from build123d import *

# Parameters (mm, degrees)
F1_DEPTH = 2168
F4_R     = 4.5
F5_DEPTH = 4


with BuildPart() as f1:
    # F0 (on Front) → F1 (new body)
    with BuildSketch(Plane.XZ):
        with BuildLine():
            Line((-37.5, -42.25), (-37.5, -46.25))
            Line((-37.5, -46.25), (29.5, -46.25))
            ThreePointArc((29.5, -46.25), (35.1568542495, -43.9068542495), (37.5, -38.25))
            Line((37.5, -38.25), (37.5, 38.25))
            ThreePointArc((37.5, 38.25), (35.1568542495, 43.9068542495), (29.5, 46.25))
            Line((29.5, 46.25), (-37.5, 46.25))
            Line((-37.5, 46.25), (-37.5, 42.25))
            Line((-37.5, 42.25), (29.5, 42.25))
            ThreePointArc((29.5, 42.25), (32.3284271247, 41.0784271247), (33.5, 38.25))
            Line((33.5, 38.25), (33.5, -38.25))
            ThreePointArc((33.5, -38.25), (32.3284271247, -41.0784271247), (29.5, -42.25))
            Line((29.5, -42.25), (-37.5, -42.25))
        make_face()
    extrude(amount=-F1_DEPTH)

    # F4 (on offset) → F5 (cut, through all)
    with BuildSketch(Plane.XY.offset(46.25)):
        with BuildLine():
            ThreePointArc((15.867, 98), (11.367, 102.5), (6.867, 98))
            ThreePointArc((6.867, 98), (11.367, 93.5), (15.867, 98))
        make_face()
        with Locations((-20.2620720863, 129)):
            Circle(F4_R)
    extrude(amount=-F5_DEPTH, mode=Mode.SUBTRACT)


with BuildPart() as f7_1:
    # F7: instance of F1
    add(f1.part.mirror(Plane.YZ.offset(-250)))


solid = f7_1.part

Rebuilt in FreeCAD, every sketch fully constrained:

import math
import FreeCAD as App
import Part
import Sketcher

V = App.Vector

doc = App.newDocument("Part")
body = doc.addObject("PartDesign::Body", "Body")

# Sketch on XZ plane
sketch1 = body.newObject("Sketcher::SketchObject", "Sketch")
sketch1.AttachmentSupport = (doc.getObject("XZ_Plane"), [""])
sketch1.MapMode = "FlatFace"
sketch1.addGeometry([
    Part.LineSegment(V(-37.5, -42.2, 0), V(-37.5, -46.2, 0)),  # 0
    Part.LineSegment(V(-37.5, -46.2, 0), V(29.5, -46.2, 0)),  # 1
    Part.ArcOfCircle(Part.Circle(V(29.5, -38.2, 0), V(0, 0, 1), 8), math.radians(-90), math.radians(0)),  # 2
    Part.LineSegment(V(37.5, -38.2, 0), V(37.5, 38.2, 0)),  # 3
    Part.ArcOfCircle(Part.Circle(V(29.5, 38.2, 0), V(0, 0, 1), 8), math.radians(0), math.radians(90)),  # 4
    Part.LineSegment(V(29.5, 46.2, 0), V(-37.5, 46.2, 0)),  # 5
    Part.LineSegment(V(-37.5, 46.2, 0), V(-37.5, 42.2, 0)),  # 6
    Part.LineSegment(V(-37.5, 42.2, 0), V(29.5, 42.2, 0)),  # 7
    Part.ArcOfCircle(Part.Circle(V(29.5, 38.2, 0), V(0, 0, 1), 4), math.radians(0), math.radians(90)),  # 8
    Part.LineSegment(V(33.5, 38.2, 0), V(33.5, -38.2, 0)),  # 9
    Part.ArcOfCircle(Part.Circle(V(29.5, -38.2, 0), V(0, 0, 1), 4), math.radians(-90), math.radians(0)),  # 10
    Part.LineSegment(V(29.5, -42.2, 0), V(-37.5, -42.2, 0)),  # 11
], False)
sketch1.addConstraint([
    Sketcher.Constraint("Coincident", 0, 2, 1, 1),
    Sketcher.Constraint("Tangent", 1, 2, 2, 1),
    Sketcher.Constraint("Tangent", 2, 2, 3, 1),
    Sketcher.Constraint("Tangent", 3, 2, 4, 1),
    Sketcher.Constraint("Tangent", 4, 2, 5, 1),
    Sketcher.Constraint("Coincident", 5, 2, 6, 1),
    Sketcher.Constraint("Coincident", 6, 2, 7, 1),
    Sketcher.Constraint("Tangent", 7, 2, 8, 2),
    Sketcher.Constraint("Tangent", 8, 1, 9, 1),
    Sketcher.Constraint("Tangent", 9, 2, 10, 2),
    Sketcher.Constraint("Tangent", 10, 1, 11, 1),
    Sketcher.Constraint("Coincident", 11, 2, 0, 1),
    Sketcher.Constraint("Vertical", 0),
    Sketcher.Constraint("Horizontal", 1),
    Sketcher.Constraint("Vertical", 3),
    Sketcher.Constraint("Horizontal", 5),
    Sketcher.Constraint("Vertical", 6),
    Sketcher.Constraint("Horizontal", 7),
    Sketcher.Constraint("Vertical", 9),
    Sketcher.Constraint("Horizontal", 11),
    Sketcher.Constraint("Coincident", 8, 3, 4, 3),
    Sketcher.Constraint("Coincident", 10, 3, 2, 3),
    Sketcher.Constraint("Equal", 2, 4),
    Sketcher.Constraint("Symmetric", 0, 2, 5, 2, -1),
    Sketcher.Constraint("Radius", 2, 8.0),
    Sketcher.Constraint("Radius", 8, 4.0),
    Sketcher.Constraint("DistanceX", 1, 1, 1, 2, 67.0),
    Sketcher.Constraint("DistanceY", 3, 1, 3, 2, 76.5),
    Sketcher.Constraint("DistanceX", -1, 1, 2, 3, 29.5),
])
pad1 = body.newObject("PartDesign::Pad", "Pad")
pad1.Profile = sketch1
pad1.Length = 2168
pad1.Reversed = True

# Sketch on XY plane
sketch2 = body.newObject("Sketcher::SketchObject", "Sketch001")
sketch2.AttachmentSupport = (doc.getObject("XY_Plane"), [""])
sketch2.MapMode = "FlatFace"
sketch2.AttachmentOffset = App.Placement(V(0, 0, 46.25), App.Rotation())
sketch2.addGeometry([
    Part.Circle(V(11.4, 98, 0), V(0, 0, 1), 4.5),
    Part.Circle(V(-20.3, 129, 0), V(0, 0, 1), 4.5),
], False)
sketch2.addConstraint([
    Sketcher.Constraint("Equal", 0, 1),
    Sketcher.Constraint("Diameter", 0, 9.0),
    Sketcher.Constraint("DistanceY", -1, 1, 0, 3, 98.0),
    Sketcher.Constraint("DistanceY", -1, 1, 1, 3, 129.0),
    Sketcher.Constraint("DistanceX", -1, 1, 0, 3, 11.367),
    Sketcher.Constraint("DistanceX", 1, 3, -1, 1, 20.262072),
])
pocket1 = body.newObject("PartDesign::Pocket", "Pocket")
pocket1.Profile = sketch2
pocket1.Length = 4
body2 = doc.addObject("PartDesign::Body", "Body001")
doc.recompute()

mirroring = doc.addObject("Part::Mirroring", "Mirroring")
mirroring.Source = body
mirroring.Base = V(-250, 0, 0)
mirroring.Normal = V(1, 0, 0)
body2.BaseFeature = mirroring
doc.recompute()
body.Visibility = False
mirroring.Visibility = False

doc.recompute()
